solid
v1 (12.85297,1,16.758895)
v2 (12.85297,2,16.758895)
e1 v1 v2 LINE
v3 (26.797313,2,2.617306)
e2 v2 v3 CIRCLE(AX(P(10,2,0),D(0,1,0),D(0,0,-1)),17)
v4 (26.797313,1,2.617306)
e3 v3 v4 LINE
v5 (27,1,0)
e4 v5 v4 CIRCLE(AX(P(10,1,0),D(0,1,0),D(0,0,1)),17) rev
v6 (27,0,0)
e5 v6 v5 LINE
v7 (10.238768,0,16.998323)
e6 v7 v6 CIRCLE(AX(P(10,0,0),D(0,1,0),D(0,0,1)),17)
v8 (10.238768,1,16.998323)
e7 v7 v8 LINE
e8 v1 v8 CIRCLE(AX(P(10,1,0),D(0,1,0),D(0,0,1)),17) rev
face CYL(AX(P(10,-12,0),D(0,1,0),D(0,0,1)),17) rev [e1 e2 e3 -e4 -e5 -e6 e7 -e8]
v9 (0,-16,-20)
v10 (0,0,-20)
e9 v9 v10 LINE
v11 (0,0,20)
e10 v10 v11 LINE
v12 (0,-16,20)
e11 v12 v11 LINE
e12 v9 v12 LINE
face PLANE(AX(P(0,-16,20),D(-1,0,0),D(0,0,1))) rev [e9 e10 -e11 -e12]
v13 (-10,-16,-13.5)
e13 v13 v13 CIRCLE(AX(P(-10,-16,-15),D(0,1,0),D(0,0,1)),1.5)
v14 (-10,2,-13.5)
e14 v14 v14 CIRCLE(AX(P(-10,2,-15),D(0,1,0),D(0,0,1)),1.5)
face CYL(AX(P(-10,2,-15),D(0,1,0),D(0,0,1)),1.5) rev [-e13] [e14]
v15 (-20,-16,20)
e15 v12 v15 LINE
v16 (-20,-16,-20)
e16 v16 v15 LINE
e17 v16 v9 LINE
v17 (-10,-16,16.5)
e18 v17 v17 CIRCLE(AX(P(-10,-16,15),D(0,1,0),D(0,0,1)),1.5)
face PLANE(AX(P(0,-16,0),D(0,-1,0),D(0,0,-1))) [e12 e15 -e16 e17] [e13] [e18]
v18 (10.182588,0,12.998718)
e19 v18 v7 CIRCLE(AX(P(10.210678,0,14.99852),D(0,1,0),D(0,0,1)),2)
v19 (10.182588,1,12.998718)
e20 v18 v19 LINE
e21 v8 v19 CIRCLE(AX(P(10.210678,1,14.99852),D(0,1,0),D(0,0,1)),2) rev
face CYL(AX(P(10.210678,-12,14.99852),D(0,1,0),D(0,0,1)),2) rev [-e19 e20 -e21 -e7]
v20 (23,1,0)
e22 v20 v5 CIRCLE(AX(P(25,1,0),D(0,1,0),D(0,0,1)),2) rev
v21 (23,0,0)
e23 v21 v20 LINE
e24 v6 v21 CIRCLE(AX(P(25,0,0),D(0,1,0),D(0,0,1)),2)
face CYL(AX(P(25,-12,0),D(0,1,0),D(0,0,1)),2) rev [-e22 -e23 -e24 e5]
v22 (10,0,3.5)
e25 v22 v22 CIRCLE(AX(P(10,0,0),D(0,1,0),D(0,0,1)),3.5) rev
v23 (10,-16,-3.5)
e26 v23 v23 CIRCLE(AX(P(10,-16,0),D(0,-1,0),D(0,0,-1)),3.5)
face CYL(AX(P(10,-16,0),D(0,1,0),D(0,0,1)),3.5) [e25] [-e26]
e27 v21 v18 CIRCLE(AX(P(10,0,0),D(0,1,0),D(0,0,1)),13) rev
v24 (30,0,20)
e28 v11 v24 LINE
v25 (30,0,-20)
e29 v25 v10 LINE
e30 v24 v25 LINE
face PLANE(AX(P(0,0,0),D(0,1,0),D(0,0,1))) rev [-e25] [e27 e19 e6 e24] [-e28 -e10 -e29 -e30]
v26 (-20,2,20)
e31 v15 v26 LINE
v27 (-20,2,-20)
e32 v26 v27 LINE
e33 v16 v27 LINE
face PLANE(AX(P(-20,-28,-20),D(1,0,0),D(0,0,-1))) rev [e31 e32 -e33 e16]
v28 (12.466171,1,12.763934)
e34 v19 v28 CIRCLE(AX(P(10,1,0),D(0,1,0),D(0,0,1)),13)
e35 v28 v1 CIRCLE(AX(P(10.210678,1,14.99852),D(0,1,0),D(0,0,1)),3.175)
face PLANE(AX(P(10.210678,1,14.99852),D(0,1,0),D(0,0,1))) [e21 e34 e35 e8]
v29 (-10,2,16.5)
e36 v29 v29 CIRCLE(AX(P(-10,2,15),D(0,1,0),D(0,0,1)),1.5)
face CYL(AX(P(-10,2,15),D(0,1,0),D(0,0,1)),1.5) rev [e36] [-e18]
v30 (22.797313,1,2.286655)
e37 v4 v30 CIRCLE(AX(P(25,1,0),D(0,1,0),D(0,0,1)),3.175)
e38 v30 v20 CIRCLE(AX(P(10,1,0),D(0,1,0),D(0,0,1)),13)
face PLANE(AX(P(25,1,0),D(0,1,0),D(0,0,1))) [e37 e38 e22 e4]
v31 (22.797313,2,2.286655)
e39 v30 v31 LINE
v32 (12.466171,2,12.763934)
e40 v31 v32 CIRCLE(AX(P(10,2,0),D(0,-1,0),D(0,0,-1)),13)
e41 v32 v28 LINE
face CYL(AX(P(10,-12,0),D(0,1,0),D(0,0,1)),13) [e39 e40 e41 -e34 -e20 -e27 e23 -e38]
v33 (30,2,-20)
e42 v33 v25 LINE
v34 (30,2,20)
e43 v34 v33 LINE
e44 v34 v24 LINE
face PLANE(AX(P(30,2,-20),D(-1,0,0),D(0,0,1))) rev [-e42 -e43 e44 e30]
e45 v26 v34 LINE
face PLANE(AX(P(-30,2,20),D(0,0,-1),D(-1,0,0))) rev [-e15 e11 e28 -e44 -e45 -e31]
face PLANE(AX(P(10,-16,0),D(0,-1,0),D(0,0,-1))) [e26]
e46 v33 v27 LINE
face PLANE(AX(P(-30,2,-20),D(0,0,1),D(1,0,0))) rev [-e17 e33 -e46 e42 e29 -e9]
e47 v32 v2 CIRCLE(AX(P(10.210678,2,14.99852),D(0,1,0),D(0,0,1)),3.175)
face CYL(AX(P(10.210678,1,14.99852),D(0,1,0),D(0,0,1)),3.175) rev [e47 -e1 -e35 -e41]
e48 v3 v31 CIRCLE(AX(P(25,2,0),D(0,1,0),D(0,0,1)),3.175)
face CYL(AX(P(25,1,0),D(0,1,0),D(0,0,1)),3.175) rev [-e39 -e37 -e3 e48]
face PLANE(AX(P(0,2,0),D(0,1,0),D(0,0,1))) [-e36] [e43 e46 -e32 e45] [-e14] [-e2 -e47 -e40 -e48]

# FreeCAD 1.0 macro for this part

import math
import FreeCAD as App
import Part
import Sketcher
from FreeCAD import Vector

doc = App.newDocument("Part")
body = doc.addObject("PartDesign::Body", "Body")

# Sketch on XZ plane
sketch1 = doc.addObject("Sketcher::SketchObject", "Sketch")
body.addObject(sketch1)
sketch1.AttachmentSupport = (doc.XZ_Plane, [""])
sketch1.MapMode = "FlatFace"
sketch1.addGeometry(Part.LineSegment(Vector(-30, -20, 0), Vector(-30, 20, 0)), False)
sketch1.addGeometry(Part.LineSegment(Vector(-30, 20, 0), Vector(30, 20, 0)), False)
sketch1.addGeometry(Part.LineSegment(Vector(30, 20, 0), Vector(30, -20, 0)), False)
sketch1.addGeometry(Part.LineSegment(Vector(30, -20, 0), Vector(-30, -20, 0)), False)
sketch1.addConstraint(Sketcher.Constraint("Coincident", 0, 2, 1, 1))
sketch1.addConstraint(Sketcher.Constraint("Coincident", 1, 2, 2, 1))
sketch1.addConstraint(Sketcher.Constraint("Coincident", 2, 2, 3, 1))
sketch1.addConstraint(Sketcher.Constraint("Coincident", 3, 2, 0, 1))
sketch1.addConstraint(Sketcher.Constraint("Vertical", 0))
sketch1.addConstraint(Sketcher.Constraint("Horizontal", 1))
sketch1.addConstraint(Sketcher.Constraint("Vertical", 2))
sketch1.addConstraint(Sketcher.Constraint("Horizontal", 3))
sketch1.addConstraint(Sketcher.Constraint("Symmetric", 0, 2, 2, 2, -1, 1))
sketch1.addConstraint(Sketcher.Constraint("DistanceX", 1, 1, 1, 2, 60.0))
sketch1.addConstraint(Sketcher.Constraint("DistanceY", 0, 1, 0, 2, 40.0))
pad1 = doc.addObject("PartDesign::Pad", "Pad")
body.addObject(pad1)
pad1.Profile = sketch1
pad1.Length = 2
pad1.Reversed = True

# Sketch on XZ plane
sketch2 = doc.addObject("Sketcher::SketchObject", "Sketch001")
body.addObject(sketch2)
sketch2.AttachmentSupport = (doc.XZ_Plane, [""])
sketch2.MapMode = "FlatFace"
sketch2.AttachmentOffset = App.Placement(Vector(0, 0, -2), App.Rotation())
sketch2.addGeometry(Part.ArcOfCircle(Part.Circle(Vector(10, 0, 0), Vector(0, 0, 1), 17), math.radians(0), math.radians(89.195243)), False)
sketch2.addGeometry(Part.ArcOfCircle(Part.Circle(Vector(25, 0, 0), Vector(0, 0, 1), 2), math.radians(180), math.radians(360)), False)
sketch2.addGeometry(Part.ArcOfCircle(Part.Circle(Vector(10, 0, 0), Vector(0, 0, 1), 13), math.radians(0), math.radians(89.195243)), False)
sketch2.addGeometry(Part.ArcOfCircle(Part.Circle(Vector(10.210678, 14.99852, 0), Vector(0, 0, 1), 2), math.radians(89.195243), math.radians(269.195243)), False)
sketch2.addConstraint(Sketcher.Constraint("Tangent", 0, 1, 1, 2))
sketch2.addConstraint(Sketcher.Constraint("Tangent", 1, 1, 2, 1))
sketch2.addConstraint(Sketcher.Constraint("Tangent", 2, 2, 3, 2))
sketch2.addConstraint(Sketcher.Constraint("Tangent", 3, 1, 0, 2))
sketch2.addConstraint(Sketcher.Constraint("Coincident", 2, 3, 0, 3))
sketch2.addConstraint(Sketcher.Constraint("PointOnObject", 0, 3, -1))
sketch2.addConstraint(Sketcher.Constraint("PointOnObject", 1, 3, -1))
sketch2.addConstraint(Sketcher.Constraint("Radius", 0, 17.0))
sketch2.addConstraint(Sketcher.Constraint("Radius", 1, 2.0))
sketch2.addConstraint(Sketcher.Constraint("DistanceX", -1, 1, 0, 3, 10.0))
sketch2.addConstraint(Sketcher.Constraint("DistanceY", -1, 1, 3, 3, 14.99852))
pocket1 = doc.addObject("PartDesign::Pocket", "Pocket")
body.addObject(pocket1)
pocket1.Profile = sketch2
pocket1.Length = 14
pocket1.Reversed = True

# Sketch on XZ plane
sketch3 = doc.addObject("Sketcher::SketchObject", "Sketch002")
body.addObject(sketch3)
sketch3.AttachmentSupport = (doc.XZ_Plane, [""])
sketch3.MapMode = "FlatFace"
sketch3.addGeometry(Part.LineSegment(Vector(-30, 20, 0), Vector(-30, -20, 0)), False)
sketch3.addGeometry(Part.LineSegment(Vector(-30, -20, 0), Vector(0, -20, 0)), False)
sketch3.addGeometry(Part.LineSegment(Vector(0, -20, 0), Vector(0, 20, 0)), False)
sketch3.addGeometry(Part.LineSegment(Vector(0, 20, 0), Vector(-30, 20, 0)), False)
sketch3.addConstraint(Sketcher.Constraint("Coincident", 0, 2, 1, 1))
sketch3.addConstraint(Sketcher.Constraint("Coincident", 1, 2, 2, 1))
sketch3.addConstraint(Sketcher.Constraint("Coincident", 2, 2, 3, 1))
sketch3.addConstraint(Sketcher.Constraint("Coincident", 3, 2, 0, 1))
sketch3.addConstraint(Sketcher.Constraint("Vertical", 0))
sketch3.addConstraint(Sketcher.Constraint("Horizontal", 1))
sketch3.addConstraint(Sketcher.Constraint("Vertical", 2))
sketch3.addConstraint(Sketcher.Constraint("Horizontal", 3))
sketch3.addConstraint(Sketcher.Constraint("Symmetric", 1, 2, 2, 2, -1, 1))
sketch3.addConstraint(Sketcher.Constraint("DistanceX", 1, 1, 1, 2, 30.0))
sketch3.addConstraint(Sketcher.Constraint("DistanceY", 0, 2, 0, 1, 40.0))
pad2 = doc.addObject("PartDesign::Pad", "Pad001")
body.addObject(pad2)
pad2.Profile = sketch3
pad2.Length = 16

# Sketch on XZ plane
sketch4 = doc.addObject("Sketcher::SketchObject", "Sketch003")
body.addObject(sketch4)
sketch4.AttachmentSupport = (doc.XZ_Plane, [""])
sketch4.MapMode = "FlatFace"
sketch4.addGeometry(Part.Circle(Vector(10, 0, 0), Vector(0, 0, 1), 3.5), False)
sketch4.addConstraint(Sketcher.Constraint("PointOnObject", 0, 3, -1))
sketch4.addConstraint(Sketcher.Constraint("Diameter", 0, 7.0))
sketch4.addConstraint(Sketcher.Constraint("DistanceX", -1, 1, 0, 3, 10.0))
pad3 = doc.addObject("PartDesign::Pad", "Pad002")
body.addObject(pad3)
pad3.Profile = sketch4
pad3.Length = 16

# Sketch on XZ plane
sketch5 = doc.addObject("Sketcher::SketchObject", "Sketch004")
body.addObject(sketch5)
sketch5.AttachmentSupport = (doc.XZ_Plane, [""])
sketch5.MapMode = "FlatFace"
sketch5.AttachmentOffset = App.Placement(Vector(0, 0, -2), App.Rotation())
sketch5.addGeometry(Part.Circle(Vector(25, 0, 0), Vector(0, 0, 1), 3.175), False)
sketch5.addGeometry(Part.Circle(Vector(10.210678, 14.99852, 0), Vector(0, 0, 1), 3.175), False)
sketch5.addConstraint(Sketcher.Constraint("Equal", 0, 1))
sketch5.addConstraint(Sketcher.Constraint("PointOnObject", 0, 3, -1))
sketch5.addConstraint(Sketcher.Constraint("Diameter", 0, 6.35))
sketch5.addConstraint(Sketcher.Constraint("DistanceX", -1, 1, 0, 3, 25.0))
sketch5.addConstraint(Sketcher.Constraint("DistanceY", -1, 1, 1, 3, 14.99852))
sketch5.addConstraint(Sketcher.Constraint("DistanceX", -1, 1, 1, 3, 10.210678))
pocket2 = doc.addObject("PartDesign::Pocket", "Pocket001")
body.addObject(pocket2)
pocket2.Profile = sketch5
pocket2.Length = 1
pocket2.Reversed = True

# Sketch on XZ plane
sketch6 = doc.addObject("Sketcher::SketchObject", "Sketch005")
body.addObject(sketch6)
sketch6.AttachmentSupport = (doc.XZ_Plane, [""])
sketch6.MapMode = "FlatFace"
sketch6.AttachmentOffset = App.Placement(Vector(0, 0, -2), App.Rotation())
sketch6.addGeometry(Part.LineSegment(Vector(-30, -20, 0), Vector(-30, 20, 0)), False)
sketch6.addGeometry(Part.LineSegment(Vector(-30, 20, 0), Vector(-20, 20, 0)), False)
sketch6.addGeometry(Part.LineSegment(Vector(-20, 20, 0), Vector(-20, -20, 0)), False)
sketch6.addGeometry(Part.LineSegment(Vector(-20, -20, 0), Vector(-30, -20, 0)), False)
sketch6.addConstraint(Sketcher.Constraint("Coincident", 0, 2, 1, 1))
sketch6.addConstraint(Sketcher.Constraint("Coincident", 1, 2, 2, 1))
sketch6.addConstraint(Sketcher.Constraint("Coincident", 2, 2, 3, 1))
sketch6.addConstraint(Sketcher.Constraint("Coincident", 3, 2, 0, 1))
sketch6.addConstraint(Sketcher.Constraint("Vertical", 0))
sketch6.addConstraint(Sketcher.Constraint("Horizontal", 1))
sketch6.addConstraint(Sketcher.Constraint("Vertical", 2))
sketch6.addConstraint(Sketcher.Constraint("Horizontal", 3))
sketch6.addConstraint(Sketcher.Constraint("DistanceX", 1, 1, 1, 2, 10.0))
sketch6.addConstraint(Sketcher.Constraint("DistanceY", 0, 1, 0, 2, 40.0))
sketch6.addConstraint(Sketcher.Constraint("DistanceX", 0, 2, -1, 1, 30.0))
sketch6.addConstraint(Sketcher.Constraint("DistanceY", -1, 1, 0, 2, 20.0))
pocket3 = doc.addObject("PartDesign::Pocket", "Pocket002")
body.addObject(pocket3)
pocket3.Profile = sketch6
pocket3.Length = 30
pocket3.Reversed = True

# Sketch on XZ plane
sketch7 = doc.addObject("Sketcher::SketchObject", "Sketch006")
body.addObject(sketch7)
sketch7.AttachmentSupport = (doc.XZ_Plane, [""])
sketch7.MapMode = "FlatFace"
sketch7.AttachmentOffset = App.Placement(Vector(0, 0, -2), App.Rotation())
sketch7.addGeometry(Part.Circle(Vector(-10, -15, 0), Vector(0, 0, 1), 1.5), False)
sketch7.addGeometry(Part.Circle(Vector(-10, 15, 0), Vector(0, 0, 1), 1.5), False)
sketch7.addConstraint(Sketcher.Constraint("Equal", 0, 1))
sketch7.addConstraint(Sketcher.Constraint("Symmetric", 0, 3, 1, 3, -1))
sketch7.addConstraint(Sketcher.Constraint("Diameter", 0, 3.0))
sketch7.addConstraint(Sketcher.Constraint("DistanceX", 0, 3, -1, 1, 10.0))
sketch7.addConstraint(Sketcher.Constraint("DistanceY", 0, 3, -1, 1, 15.0))
doc.recompute()
hole = doc.addObject("PartDesign::Hole", "Hole")
body.addObject(hole)
hole.Profile = sketch7
hole.ThreadType = "None"
hole.Diameter = 3
hole.DepthType = "ThroughAll"
hole.Reversed = True

doc.recompute()
